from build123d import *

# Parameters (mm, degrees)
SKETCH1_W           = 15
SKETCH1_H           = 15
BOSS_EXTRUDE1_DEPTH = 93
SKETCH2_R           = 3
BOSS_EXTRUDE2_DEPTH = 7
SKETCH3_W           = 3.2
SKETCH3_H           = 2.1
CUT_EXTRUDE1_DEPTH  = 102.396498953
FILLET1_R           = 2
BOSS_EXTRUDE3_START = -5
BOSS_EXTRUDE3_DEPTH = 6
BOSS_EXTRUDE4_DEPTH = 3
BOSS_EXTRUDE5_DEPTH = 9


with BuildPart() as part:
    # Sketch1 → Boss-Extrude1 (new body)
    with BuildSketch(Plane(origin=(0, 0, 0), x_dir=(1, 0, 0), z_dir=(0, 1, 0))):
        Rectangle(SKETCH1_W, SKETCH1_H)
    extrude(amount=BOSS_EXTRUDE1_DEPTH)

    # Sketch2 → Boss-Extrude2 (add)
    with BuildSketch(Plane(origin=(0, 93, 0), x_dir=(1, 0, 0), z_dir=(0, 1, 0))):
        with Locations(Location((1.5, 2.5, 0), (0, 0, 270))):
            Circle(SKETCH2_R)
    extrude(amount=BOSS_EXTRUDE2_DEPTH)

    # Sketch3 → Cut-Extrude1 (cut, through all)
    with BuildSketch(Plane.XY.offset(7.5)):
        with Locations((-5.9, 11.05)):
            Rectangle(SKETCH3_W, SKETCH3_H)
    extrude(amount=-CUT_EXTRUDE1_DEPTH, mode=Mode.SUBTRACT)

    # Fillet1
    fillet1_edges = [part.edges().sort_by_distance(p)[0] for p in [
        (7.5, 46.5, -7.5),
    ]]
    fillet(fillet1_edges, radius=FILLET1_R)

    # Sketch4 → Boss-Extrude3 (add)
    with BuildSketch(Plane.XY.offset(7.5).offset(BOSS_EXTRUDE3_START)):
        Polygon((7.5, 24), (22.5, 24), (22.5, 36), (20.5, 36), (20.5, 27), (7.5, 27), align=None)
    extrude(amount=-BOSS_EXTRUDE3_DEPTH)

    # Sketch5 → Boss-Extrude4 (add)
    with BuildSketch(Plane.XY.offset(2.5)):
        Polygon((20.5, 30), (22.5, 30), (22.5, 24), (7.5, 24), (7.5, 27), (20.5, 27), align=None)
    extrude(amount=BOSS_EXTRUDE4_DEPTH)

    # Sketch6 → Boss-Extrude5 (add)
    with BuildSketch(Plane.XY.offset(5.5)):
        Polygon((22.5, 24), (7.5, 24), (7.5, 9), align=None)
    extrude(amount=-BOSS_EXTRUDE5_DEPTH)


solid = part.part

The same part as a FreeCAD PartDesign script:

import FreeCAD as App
import Part
import Sketcher
Q = App.Units.Quantity


def edges_at(feature, points):
    """Names of the edges that pass closest to the given points."""
    edges = feature.Shape.Edges
    near = lambda p: min(range(len(edges)), key=lambda i: edges[i].distToShape(Part.Vertex(*p))[0])
    return sorted({f"Edge{near(p) + 1}" for p in points})

doc = App.newDocument("Part")
body = doc.addObject("PartDesign::Body", "Body")

# Sketch on XZ plane
sketch1 = body.newObject("Sketcher::SketchObject", "Sketch")
sketch1.AttachmentSupport = (doc.getObject("XZ_Plane"), [""])
sketch1.MapMode = "FlatFace"
sketch1.addGeometry(Part.LineSegment(App.Vector(-8, -8, 0), App.Vector(-8, 8, 0)), False)
sketch1.addGeometry(Part.LineSegment(App.Vector(-8, 8, 0), App.Vector(8, 8, 0)), False)
sketch1.addGeometry(Part.LineSegment(App.Vector(8, 8, 0), App.Vector(8, -8, 0)), False)
sketch1.addGeometry(Part.LineSegment(App.Vector(8, -8, 0), App.Vector(-8, -8, 0)), False)
sketch1.addConstraint(Sketcher.Constraint("Coincident", 0, 2, 1, 1))
sketch1.addConstraint(Sketcher.Constraint("Coincident", 1, 2, 2, 1))
sketch1.addConstraint(Sketcher.Constraint("Coincident", 2, 2, 3, 1))
sketch1.addConstraint(Sketcher.Constraint("Coincident", 3, 2, 0, 1))
sketch1.addConstraint(Sketcher.Constraint("Vertical", 0))
sketch1.addConstraint(Sketcher.Constraint("Horizontal", 1))
sketch1.addConstraint(Sketcher.Constraint("Vertical", 2))
sketch1.addConstraint(Sketcher.Constraint("Horizontal", 3))
sketch1.addConstraint(Sketcher.Constraint("Symmetric", 0, 2, 2, 2, -1, 1))
sketch1.addConstraint(Sketcher.Constraint("Equal", 3, 0))
sketch1.addConstraint(Sketcher.Constraint("DistanceX", 1, 1, 1, 2, Q("15 mm")))
pad1 = body.newObject("PartDesign::Pad", "Pad")
pad1.Profile = sketch1
pad1.Length = 93
pad1.Reversed = True

# Sketch on XZ plane
sketch2 = body.newObject("Sketcher::SketchObject", "Sketch001")
sketch2.AttachmentSupport = (doc.getObject("XZ_Plane"), [""])
sketch2.MapMode = "FlatFace"
sketch2.AttachmentOffset = App.Placement(App.Vector(0, 0, -93), App.Rotation())
sketch2.addGeometry(Part.Circle(App.Vector(1.5, -2.5, 0), App.Vector(0, 0, 1), 3), False)
sketch2.addConstraint(Sketcher.Constraint("Diameter", 0, Q("6 mm")))
sketch2.addConstraint(Sketcher.Constraint("DistanceX", -1, 1, 0, 3, Q("1.5 mm")))
sketch2.addConstraint(Sketcher.Constraint("DistanceY", 0, 3, -1, 1, Q("2.5 mm")))
pad2 = body.newObject("PartDesign::Pad", "Pad001")
pad2.Profile = sketch2
pad2.Length = 7
pad2.Reversed = True

# Sketch on XY plane
sketch3 = body.newObject("Sketcher::SketchObject", "Sketch002")
sketch3.AttachmentSupport = (doc.getObject("XY_Plane"), [""])
sketch3.MapMode = "FlatFace"
sketch3.AttachmentOffset = App.Placement(App.Vector(0, 0, 7.5), App.Rotation())
sketch3.addGeometry(Part.LineSegment(App.Vector(-7.5, 12.1, 0), App.Vector(-7.5, 10, 0)), False)
sketch3.addGeometry(Part.LineSegment(App.Vector(-7.5, 10, 0), App.Vector(-4.3, 10, 0)), False)
sketch3.addGeometry(Part.LineSegment(App.Vector(-4.3, 10, 0), App.Vector(-4.3, 12.1, 0)), False)
sketch3.addGeometry(Part.LineSegment(App.Vector(-4.3, 12.1, 0), App.Vector(-7.5, 12.1, 0)), False)
sketch3.addConstraint(Sketcher.Constraint("Coincident", 0, 2, 1, 1))
sketch3.addConstraint(Sketcher.Constraint("Coincident", 1, 2, 2, 1))
sketch3.addConstraint(Sketcher.Constraint("Coincident", 2, 2, 3, 1))
sketch3.addConstraint(Sketcher.Constraint("Coincident", 3, 2, 0, 1))
sketch3.addConstraint(Sketcher.Constraint("Vertical", 0))
sketch3.addConstraint(Sketcher.Constraint("Horizontal", 1))
sketch3.addConstraint(Sketcher.Constraint("Vertical", 2))
sketch3.addConstraint(Sketcher.Constraint("Horizontal", 3))
sketch3.addConstraint(Sketcher.Constraint("DistanceX", 1, 1, 1, 2, Q("3.2 mm")))
sketch3.addConstraint(Sketcher.Constraint("DistanceY", 0, 2, 0, 1, Q("2.1 mm")))
sketch3.addConstraint(Sketcher.Constraint("DistanceY", -1, 1, 0, 2, Q("10 mm")))
sketch3.addConstraint(Sketcher.Constraint("DistanceX", 0, 2, -1, 1, Q("7.5 mm")))
pocket1 = body.newObject("PartDesign::Pocket", "Pocket")
pocket1.Profile = sketch3
pocket1.Type = "ThroughAll"
doc.recompute()

fillet = body.newObject("PartDesign::Fillet", "Fillet")
fillet.Base = (pocket1, edges_at(pocket1, [(7.5, 46.5, -7.5)]))
fillet.Radius = 2

# Sketch on XY plane
sketch4 = body.newObject("Sketcher::SketchObject", "Sketch003")
sketch4.AttachmentSupport = (doc.getObject("XY_Plane"), [""])
sketch4.MapMode = "FlatFace"
sketch4.AttachmentOffset = App.Placement(App.Vector(0, 0, 2.5), App.Rotation())
sketch4.addGeometry(Part.LineSegment(App.Vector(7.5, 24, 0), App.Vector(22.5, 24, 0)), False)
sketch4.addGeometry(Part.LineSegment(App.Vector(22.5, 24, 0), App.Vector(22.5, 36, 0)), False)
sketch4.addGeometry(Part.LineSegment(App.Vector(22.5, 36, 0), App.Vector(20.5, 36, 0)), False)
sketch4.addGeometry(Part.LineSegment(App.Vector(20.5, 36, 0), App.Vector(20.5, 27, 0)), False)
sketch4.addGeometry(Part.LineSegment(App.Vector(20.5, 27, 0), App.Vector(7.5, 27, 0)), False)
sketch4.addGeometry(Part.LineSegment(App.Vector(7.5, 27, 0), App.Vector(7.5, 24, 0)), False)
sketch4.addConstraint(Sketcher.Constraint("Coincident", 0, 2, 1, 1))
sketch4.addConstraint(Sketcher.Constraint("Coincident", 1, 2, 2, 1))
sketch4.addConstraint(Sketcher.Constraint("Coincident", 2, 2, 3, 1))
sketch4.addConstraint(Sketcher.Constraint("Coincident", 3, 2, 4, 1))
sketch4.addConstraint(Sketcher.Constraint("Coincident", 4, 2, 5, 1))
sketch4.addConstraint(Sketcher.Constraint("Coincident", 5, 2, 0, 1))
sketch4.addConstraint(Sketcher.Constraint("Horizontal", 0))
sketch4.addConstraint(Sketcher.Constraint("Vertical", 1))
sketch4.addConstraint(Sketcher.Constraint("Horizontal", 2))
sketch4.addConstraint(Sketcher.Constraint("Vertical", 3))
sketch4.addConstraint(Sketcher.Constraint("Horizontal", 4))
sketch4.addConstraint(Sketcher.Constraint("Vertical", 5))
sketch4.addConstraint(Sketcher.Constraint("DistanceX", 0, 1, 0, 2, Q("15 mm")))
sketch4.addConstraint(Sketcher.Constraint("DistanceX", 2, 2, 2, 1, Q("2 mm")))
sketch4.addConstraint(Sketcher.Constraint("DistanceY", 1, 1, 1, 2, Q("12 mm")))
sketch4.addConstraint(Sketcher.Constraint("DistanceY", 3, 2, 3, 1, Q("9 mm")))
sketch4.addConstraint(Sketcher.Constraint("DistanceY", -1, 1, 0, 2, Q("24 mm")))
sketch4.addConstraint(Sketcher.Constraint("DistanceX", -1, 1, 0, 2, Q("22.5 mm")))
pad3 = body.newObject("PartDesign::Pad", "Pad002")
pad3.Profile = sketch4
pad3.Length = 6
pad3.Reversed = True

# Sketch on XY plane
sketch5 = body.newObject("Sketcher::SketchObject", "Sketch004")
sketch5.AttachmentSupport = (doc.getObject("XY_Plane"), [""])
sketch5.MapMode = "FlatFace"
sketch5.AttachmentOffset = App.Placement(App.Vector(0, 0, 2.5), App.Rotation())
sketch5.addGeometry(Part.LineSegment(App.Vector(22.5, 30, 0), App.Vector(20.5, 30, 0)), False)
sketch5.addGeometry(Part.LineSegment(App.Vector(20.5, 30, 0), App.Vector(20.5, 27, 0)), False)
sketch5.addGeometry(Part.LineSegment(App.Vector(20.5, 27, 0), App.Vector(7.5, 27, 0)), False)
sketch5.addGeometry(Part.LineSegment(App.Vector(7.5, 27, 0), App.Vector(7.5, 24, 0)), False)
sketch5.addGeometry(Part.LineSegment(App.Vector(7.5, 24, 0), App.Vector(22.5, 24, 0)), False)
sketch5.addGeometry(Part.LineSegment(App.Vector(22.5, 24, 0), App.Vector(22.5, 30, 0)), False)
sketch5.addConstraint(Sketcher.Constraint("Coincident", 0, 2, 1, 1))
sketch5.addConstraint(Sketcher.Constraint("Coincident", 1, 2, 2, 1))
sketch5.addConstraint(Sketcher.Constraint("Coincident", 2, 2, 3, 1))
sketch5.addConstraint(Sketcher.Constraint("Coincident", 3, 2, 4, 1))
sketch5.addConstraint(Sketcher.Constraint("Coincident", 4, 2, 5, 1))
sketch5.addConstraint(Sketcher.Constraint("Coincident", 5, 2, 0, 1))
sketch5.addConstraint(Sketcher.Constraint("Horizontal", 0))
sketch5.addConstraint(Sketcher.Constraint("Vertical", 1))
sketch5.addConstraint(Sketcher.Constraint("Horizontal", 2))
sketch5.addConstraint(Sketcher.Constraint("Vertical", 3))
sketch5.addConstraint(Sketcher.Constraint("Horizontal", 4))
sketch5.addConstraint(Sketcher.Constraint("Vertical", 5))
sketch5.addConstraint(Sketcher.Constraint("Equal", 1, 3))
sketch5.addConstraint(Sketcher.Constraint("DistanceX", 0, 2, 0, 1, Q("2 mm")))
sketch5.addConstraint(Sketcher.Constraint("DistanceX", 2, 2, 2, 1, Q("13 mm")))
sketch5.addConstraint(Sketcher.Constraint("DistanceY", 1, 2, 1, 1, Q("3 mm")))
sketch5.addConstraint(Sketcher.Constraint("DistanceY", -1, 1, 0, 2, Q("30 mm")))
sketch5.addConstraint(Sketcher.Constraint("DistanceX", -1, 1, 0, 2, Q("20.5 mm")))
pad4 = body.newObject("PartDesign::Pad", "Pad003")
pad4.Profile = sketch5
pad4.Length = 3

# Sketch on XY plane
sketch6 = body.newObject("Sketcher::SketchObject", "Sketch005")
sketch6.AttachmentSupport = (doc.getObject("XY_Plane"), [""])
sketch6.MapMode = "FlatFace"
sketch6.AttachmentOffset = App.Placement(App.Vector(0, 0, 5.5), App.Rotation())
sketch6.addGeometry(Part.LineSegment(App.Vector(22, 24, 0), App.Vector(8, 24, 0)), False)
sketch6.addGeometry(Part.LineSegment(App.Vector(8, 24, 0), App.Vector(8, 9, 0)), False)
sketch6.addGeometry(Part.LineSegment(App.Vector(8, 9, 0), App.Vector(22, 24, 0)), False)
sketch6.addConstraint(Sketcher.Constraint("Coincident", 0, 2, 1, 1))
sketch6.addConstraint(Sketcher.Constraint("Coincident", 1, 2, 2, 1))
sketch6.addConstraint(Sketcher.Constraint("Coincident", 2, 2, 0, 1))
sketch6.addConstraint(Sketcher.Constraint("Horizontal", 0))
sketch6.addConstraint(Sketcher.Constraint("Vertical", 1))
sketch6.addConstraint(Sketcher.Constraint("Equal", 0, 1))
sketch6.addConstraint(Sketcher.Constraint("DistanceX", 0, 2, 0, 1, Q("15 mm")))
sketch6.addConstraint(Sketcher.Constraint("DistanceY", -1, 1, 0, 2, Q("24 mm")))
sketch6.addConstraint(Sketcher.Constraint("DistanceX", -1, 1, 0, 2, Q("7.5 mm")))
pad5 = body.newObject("PartDesign::Pad", "Pad004")
pad5.Profile = sketch6
pad5.Length = 9
pad5.Reversed = True

doc.recompute()
